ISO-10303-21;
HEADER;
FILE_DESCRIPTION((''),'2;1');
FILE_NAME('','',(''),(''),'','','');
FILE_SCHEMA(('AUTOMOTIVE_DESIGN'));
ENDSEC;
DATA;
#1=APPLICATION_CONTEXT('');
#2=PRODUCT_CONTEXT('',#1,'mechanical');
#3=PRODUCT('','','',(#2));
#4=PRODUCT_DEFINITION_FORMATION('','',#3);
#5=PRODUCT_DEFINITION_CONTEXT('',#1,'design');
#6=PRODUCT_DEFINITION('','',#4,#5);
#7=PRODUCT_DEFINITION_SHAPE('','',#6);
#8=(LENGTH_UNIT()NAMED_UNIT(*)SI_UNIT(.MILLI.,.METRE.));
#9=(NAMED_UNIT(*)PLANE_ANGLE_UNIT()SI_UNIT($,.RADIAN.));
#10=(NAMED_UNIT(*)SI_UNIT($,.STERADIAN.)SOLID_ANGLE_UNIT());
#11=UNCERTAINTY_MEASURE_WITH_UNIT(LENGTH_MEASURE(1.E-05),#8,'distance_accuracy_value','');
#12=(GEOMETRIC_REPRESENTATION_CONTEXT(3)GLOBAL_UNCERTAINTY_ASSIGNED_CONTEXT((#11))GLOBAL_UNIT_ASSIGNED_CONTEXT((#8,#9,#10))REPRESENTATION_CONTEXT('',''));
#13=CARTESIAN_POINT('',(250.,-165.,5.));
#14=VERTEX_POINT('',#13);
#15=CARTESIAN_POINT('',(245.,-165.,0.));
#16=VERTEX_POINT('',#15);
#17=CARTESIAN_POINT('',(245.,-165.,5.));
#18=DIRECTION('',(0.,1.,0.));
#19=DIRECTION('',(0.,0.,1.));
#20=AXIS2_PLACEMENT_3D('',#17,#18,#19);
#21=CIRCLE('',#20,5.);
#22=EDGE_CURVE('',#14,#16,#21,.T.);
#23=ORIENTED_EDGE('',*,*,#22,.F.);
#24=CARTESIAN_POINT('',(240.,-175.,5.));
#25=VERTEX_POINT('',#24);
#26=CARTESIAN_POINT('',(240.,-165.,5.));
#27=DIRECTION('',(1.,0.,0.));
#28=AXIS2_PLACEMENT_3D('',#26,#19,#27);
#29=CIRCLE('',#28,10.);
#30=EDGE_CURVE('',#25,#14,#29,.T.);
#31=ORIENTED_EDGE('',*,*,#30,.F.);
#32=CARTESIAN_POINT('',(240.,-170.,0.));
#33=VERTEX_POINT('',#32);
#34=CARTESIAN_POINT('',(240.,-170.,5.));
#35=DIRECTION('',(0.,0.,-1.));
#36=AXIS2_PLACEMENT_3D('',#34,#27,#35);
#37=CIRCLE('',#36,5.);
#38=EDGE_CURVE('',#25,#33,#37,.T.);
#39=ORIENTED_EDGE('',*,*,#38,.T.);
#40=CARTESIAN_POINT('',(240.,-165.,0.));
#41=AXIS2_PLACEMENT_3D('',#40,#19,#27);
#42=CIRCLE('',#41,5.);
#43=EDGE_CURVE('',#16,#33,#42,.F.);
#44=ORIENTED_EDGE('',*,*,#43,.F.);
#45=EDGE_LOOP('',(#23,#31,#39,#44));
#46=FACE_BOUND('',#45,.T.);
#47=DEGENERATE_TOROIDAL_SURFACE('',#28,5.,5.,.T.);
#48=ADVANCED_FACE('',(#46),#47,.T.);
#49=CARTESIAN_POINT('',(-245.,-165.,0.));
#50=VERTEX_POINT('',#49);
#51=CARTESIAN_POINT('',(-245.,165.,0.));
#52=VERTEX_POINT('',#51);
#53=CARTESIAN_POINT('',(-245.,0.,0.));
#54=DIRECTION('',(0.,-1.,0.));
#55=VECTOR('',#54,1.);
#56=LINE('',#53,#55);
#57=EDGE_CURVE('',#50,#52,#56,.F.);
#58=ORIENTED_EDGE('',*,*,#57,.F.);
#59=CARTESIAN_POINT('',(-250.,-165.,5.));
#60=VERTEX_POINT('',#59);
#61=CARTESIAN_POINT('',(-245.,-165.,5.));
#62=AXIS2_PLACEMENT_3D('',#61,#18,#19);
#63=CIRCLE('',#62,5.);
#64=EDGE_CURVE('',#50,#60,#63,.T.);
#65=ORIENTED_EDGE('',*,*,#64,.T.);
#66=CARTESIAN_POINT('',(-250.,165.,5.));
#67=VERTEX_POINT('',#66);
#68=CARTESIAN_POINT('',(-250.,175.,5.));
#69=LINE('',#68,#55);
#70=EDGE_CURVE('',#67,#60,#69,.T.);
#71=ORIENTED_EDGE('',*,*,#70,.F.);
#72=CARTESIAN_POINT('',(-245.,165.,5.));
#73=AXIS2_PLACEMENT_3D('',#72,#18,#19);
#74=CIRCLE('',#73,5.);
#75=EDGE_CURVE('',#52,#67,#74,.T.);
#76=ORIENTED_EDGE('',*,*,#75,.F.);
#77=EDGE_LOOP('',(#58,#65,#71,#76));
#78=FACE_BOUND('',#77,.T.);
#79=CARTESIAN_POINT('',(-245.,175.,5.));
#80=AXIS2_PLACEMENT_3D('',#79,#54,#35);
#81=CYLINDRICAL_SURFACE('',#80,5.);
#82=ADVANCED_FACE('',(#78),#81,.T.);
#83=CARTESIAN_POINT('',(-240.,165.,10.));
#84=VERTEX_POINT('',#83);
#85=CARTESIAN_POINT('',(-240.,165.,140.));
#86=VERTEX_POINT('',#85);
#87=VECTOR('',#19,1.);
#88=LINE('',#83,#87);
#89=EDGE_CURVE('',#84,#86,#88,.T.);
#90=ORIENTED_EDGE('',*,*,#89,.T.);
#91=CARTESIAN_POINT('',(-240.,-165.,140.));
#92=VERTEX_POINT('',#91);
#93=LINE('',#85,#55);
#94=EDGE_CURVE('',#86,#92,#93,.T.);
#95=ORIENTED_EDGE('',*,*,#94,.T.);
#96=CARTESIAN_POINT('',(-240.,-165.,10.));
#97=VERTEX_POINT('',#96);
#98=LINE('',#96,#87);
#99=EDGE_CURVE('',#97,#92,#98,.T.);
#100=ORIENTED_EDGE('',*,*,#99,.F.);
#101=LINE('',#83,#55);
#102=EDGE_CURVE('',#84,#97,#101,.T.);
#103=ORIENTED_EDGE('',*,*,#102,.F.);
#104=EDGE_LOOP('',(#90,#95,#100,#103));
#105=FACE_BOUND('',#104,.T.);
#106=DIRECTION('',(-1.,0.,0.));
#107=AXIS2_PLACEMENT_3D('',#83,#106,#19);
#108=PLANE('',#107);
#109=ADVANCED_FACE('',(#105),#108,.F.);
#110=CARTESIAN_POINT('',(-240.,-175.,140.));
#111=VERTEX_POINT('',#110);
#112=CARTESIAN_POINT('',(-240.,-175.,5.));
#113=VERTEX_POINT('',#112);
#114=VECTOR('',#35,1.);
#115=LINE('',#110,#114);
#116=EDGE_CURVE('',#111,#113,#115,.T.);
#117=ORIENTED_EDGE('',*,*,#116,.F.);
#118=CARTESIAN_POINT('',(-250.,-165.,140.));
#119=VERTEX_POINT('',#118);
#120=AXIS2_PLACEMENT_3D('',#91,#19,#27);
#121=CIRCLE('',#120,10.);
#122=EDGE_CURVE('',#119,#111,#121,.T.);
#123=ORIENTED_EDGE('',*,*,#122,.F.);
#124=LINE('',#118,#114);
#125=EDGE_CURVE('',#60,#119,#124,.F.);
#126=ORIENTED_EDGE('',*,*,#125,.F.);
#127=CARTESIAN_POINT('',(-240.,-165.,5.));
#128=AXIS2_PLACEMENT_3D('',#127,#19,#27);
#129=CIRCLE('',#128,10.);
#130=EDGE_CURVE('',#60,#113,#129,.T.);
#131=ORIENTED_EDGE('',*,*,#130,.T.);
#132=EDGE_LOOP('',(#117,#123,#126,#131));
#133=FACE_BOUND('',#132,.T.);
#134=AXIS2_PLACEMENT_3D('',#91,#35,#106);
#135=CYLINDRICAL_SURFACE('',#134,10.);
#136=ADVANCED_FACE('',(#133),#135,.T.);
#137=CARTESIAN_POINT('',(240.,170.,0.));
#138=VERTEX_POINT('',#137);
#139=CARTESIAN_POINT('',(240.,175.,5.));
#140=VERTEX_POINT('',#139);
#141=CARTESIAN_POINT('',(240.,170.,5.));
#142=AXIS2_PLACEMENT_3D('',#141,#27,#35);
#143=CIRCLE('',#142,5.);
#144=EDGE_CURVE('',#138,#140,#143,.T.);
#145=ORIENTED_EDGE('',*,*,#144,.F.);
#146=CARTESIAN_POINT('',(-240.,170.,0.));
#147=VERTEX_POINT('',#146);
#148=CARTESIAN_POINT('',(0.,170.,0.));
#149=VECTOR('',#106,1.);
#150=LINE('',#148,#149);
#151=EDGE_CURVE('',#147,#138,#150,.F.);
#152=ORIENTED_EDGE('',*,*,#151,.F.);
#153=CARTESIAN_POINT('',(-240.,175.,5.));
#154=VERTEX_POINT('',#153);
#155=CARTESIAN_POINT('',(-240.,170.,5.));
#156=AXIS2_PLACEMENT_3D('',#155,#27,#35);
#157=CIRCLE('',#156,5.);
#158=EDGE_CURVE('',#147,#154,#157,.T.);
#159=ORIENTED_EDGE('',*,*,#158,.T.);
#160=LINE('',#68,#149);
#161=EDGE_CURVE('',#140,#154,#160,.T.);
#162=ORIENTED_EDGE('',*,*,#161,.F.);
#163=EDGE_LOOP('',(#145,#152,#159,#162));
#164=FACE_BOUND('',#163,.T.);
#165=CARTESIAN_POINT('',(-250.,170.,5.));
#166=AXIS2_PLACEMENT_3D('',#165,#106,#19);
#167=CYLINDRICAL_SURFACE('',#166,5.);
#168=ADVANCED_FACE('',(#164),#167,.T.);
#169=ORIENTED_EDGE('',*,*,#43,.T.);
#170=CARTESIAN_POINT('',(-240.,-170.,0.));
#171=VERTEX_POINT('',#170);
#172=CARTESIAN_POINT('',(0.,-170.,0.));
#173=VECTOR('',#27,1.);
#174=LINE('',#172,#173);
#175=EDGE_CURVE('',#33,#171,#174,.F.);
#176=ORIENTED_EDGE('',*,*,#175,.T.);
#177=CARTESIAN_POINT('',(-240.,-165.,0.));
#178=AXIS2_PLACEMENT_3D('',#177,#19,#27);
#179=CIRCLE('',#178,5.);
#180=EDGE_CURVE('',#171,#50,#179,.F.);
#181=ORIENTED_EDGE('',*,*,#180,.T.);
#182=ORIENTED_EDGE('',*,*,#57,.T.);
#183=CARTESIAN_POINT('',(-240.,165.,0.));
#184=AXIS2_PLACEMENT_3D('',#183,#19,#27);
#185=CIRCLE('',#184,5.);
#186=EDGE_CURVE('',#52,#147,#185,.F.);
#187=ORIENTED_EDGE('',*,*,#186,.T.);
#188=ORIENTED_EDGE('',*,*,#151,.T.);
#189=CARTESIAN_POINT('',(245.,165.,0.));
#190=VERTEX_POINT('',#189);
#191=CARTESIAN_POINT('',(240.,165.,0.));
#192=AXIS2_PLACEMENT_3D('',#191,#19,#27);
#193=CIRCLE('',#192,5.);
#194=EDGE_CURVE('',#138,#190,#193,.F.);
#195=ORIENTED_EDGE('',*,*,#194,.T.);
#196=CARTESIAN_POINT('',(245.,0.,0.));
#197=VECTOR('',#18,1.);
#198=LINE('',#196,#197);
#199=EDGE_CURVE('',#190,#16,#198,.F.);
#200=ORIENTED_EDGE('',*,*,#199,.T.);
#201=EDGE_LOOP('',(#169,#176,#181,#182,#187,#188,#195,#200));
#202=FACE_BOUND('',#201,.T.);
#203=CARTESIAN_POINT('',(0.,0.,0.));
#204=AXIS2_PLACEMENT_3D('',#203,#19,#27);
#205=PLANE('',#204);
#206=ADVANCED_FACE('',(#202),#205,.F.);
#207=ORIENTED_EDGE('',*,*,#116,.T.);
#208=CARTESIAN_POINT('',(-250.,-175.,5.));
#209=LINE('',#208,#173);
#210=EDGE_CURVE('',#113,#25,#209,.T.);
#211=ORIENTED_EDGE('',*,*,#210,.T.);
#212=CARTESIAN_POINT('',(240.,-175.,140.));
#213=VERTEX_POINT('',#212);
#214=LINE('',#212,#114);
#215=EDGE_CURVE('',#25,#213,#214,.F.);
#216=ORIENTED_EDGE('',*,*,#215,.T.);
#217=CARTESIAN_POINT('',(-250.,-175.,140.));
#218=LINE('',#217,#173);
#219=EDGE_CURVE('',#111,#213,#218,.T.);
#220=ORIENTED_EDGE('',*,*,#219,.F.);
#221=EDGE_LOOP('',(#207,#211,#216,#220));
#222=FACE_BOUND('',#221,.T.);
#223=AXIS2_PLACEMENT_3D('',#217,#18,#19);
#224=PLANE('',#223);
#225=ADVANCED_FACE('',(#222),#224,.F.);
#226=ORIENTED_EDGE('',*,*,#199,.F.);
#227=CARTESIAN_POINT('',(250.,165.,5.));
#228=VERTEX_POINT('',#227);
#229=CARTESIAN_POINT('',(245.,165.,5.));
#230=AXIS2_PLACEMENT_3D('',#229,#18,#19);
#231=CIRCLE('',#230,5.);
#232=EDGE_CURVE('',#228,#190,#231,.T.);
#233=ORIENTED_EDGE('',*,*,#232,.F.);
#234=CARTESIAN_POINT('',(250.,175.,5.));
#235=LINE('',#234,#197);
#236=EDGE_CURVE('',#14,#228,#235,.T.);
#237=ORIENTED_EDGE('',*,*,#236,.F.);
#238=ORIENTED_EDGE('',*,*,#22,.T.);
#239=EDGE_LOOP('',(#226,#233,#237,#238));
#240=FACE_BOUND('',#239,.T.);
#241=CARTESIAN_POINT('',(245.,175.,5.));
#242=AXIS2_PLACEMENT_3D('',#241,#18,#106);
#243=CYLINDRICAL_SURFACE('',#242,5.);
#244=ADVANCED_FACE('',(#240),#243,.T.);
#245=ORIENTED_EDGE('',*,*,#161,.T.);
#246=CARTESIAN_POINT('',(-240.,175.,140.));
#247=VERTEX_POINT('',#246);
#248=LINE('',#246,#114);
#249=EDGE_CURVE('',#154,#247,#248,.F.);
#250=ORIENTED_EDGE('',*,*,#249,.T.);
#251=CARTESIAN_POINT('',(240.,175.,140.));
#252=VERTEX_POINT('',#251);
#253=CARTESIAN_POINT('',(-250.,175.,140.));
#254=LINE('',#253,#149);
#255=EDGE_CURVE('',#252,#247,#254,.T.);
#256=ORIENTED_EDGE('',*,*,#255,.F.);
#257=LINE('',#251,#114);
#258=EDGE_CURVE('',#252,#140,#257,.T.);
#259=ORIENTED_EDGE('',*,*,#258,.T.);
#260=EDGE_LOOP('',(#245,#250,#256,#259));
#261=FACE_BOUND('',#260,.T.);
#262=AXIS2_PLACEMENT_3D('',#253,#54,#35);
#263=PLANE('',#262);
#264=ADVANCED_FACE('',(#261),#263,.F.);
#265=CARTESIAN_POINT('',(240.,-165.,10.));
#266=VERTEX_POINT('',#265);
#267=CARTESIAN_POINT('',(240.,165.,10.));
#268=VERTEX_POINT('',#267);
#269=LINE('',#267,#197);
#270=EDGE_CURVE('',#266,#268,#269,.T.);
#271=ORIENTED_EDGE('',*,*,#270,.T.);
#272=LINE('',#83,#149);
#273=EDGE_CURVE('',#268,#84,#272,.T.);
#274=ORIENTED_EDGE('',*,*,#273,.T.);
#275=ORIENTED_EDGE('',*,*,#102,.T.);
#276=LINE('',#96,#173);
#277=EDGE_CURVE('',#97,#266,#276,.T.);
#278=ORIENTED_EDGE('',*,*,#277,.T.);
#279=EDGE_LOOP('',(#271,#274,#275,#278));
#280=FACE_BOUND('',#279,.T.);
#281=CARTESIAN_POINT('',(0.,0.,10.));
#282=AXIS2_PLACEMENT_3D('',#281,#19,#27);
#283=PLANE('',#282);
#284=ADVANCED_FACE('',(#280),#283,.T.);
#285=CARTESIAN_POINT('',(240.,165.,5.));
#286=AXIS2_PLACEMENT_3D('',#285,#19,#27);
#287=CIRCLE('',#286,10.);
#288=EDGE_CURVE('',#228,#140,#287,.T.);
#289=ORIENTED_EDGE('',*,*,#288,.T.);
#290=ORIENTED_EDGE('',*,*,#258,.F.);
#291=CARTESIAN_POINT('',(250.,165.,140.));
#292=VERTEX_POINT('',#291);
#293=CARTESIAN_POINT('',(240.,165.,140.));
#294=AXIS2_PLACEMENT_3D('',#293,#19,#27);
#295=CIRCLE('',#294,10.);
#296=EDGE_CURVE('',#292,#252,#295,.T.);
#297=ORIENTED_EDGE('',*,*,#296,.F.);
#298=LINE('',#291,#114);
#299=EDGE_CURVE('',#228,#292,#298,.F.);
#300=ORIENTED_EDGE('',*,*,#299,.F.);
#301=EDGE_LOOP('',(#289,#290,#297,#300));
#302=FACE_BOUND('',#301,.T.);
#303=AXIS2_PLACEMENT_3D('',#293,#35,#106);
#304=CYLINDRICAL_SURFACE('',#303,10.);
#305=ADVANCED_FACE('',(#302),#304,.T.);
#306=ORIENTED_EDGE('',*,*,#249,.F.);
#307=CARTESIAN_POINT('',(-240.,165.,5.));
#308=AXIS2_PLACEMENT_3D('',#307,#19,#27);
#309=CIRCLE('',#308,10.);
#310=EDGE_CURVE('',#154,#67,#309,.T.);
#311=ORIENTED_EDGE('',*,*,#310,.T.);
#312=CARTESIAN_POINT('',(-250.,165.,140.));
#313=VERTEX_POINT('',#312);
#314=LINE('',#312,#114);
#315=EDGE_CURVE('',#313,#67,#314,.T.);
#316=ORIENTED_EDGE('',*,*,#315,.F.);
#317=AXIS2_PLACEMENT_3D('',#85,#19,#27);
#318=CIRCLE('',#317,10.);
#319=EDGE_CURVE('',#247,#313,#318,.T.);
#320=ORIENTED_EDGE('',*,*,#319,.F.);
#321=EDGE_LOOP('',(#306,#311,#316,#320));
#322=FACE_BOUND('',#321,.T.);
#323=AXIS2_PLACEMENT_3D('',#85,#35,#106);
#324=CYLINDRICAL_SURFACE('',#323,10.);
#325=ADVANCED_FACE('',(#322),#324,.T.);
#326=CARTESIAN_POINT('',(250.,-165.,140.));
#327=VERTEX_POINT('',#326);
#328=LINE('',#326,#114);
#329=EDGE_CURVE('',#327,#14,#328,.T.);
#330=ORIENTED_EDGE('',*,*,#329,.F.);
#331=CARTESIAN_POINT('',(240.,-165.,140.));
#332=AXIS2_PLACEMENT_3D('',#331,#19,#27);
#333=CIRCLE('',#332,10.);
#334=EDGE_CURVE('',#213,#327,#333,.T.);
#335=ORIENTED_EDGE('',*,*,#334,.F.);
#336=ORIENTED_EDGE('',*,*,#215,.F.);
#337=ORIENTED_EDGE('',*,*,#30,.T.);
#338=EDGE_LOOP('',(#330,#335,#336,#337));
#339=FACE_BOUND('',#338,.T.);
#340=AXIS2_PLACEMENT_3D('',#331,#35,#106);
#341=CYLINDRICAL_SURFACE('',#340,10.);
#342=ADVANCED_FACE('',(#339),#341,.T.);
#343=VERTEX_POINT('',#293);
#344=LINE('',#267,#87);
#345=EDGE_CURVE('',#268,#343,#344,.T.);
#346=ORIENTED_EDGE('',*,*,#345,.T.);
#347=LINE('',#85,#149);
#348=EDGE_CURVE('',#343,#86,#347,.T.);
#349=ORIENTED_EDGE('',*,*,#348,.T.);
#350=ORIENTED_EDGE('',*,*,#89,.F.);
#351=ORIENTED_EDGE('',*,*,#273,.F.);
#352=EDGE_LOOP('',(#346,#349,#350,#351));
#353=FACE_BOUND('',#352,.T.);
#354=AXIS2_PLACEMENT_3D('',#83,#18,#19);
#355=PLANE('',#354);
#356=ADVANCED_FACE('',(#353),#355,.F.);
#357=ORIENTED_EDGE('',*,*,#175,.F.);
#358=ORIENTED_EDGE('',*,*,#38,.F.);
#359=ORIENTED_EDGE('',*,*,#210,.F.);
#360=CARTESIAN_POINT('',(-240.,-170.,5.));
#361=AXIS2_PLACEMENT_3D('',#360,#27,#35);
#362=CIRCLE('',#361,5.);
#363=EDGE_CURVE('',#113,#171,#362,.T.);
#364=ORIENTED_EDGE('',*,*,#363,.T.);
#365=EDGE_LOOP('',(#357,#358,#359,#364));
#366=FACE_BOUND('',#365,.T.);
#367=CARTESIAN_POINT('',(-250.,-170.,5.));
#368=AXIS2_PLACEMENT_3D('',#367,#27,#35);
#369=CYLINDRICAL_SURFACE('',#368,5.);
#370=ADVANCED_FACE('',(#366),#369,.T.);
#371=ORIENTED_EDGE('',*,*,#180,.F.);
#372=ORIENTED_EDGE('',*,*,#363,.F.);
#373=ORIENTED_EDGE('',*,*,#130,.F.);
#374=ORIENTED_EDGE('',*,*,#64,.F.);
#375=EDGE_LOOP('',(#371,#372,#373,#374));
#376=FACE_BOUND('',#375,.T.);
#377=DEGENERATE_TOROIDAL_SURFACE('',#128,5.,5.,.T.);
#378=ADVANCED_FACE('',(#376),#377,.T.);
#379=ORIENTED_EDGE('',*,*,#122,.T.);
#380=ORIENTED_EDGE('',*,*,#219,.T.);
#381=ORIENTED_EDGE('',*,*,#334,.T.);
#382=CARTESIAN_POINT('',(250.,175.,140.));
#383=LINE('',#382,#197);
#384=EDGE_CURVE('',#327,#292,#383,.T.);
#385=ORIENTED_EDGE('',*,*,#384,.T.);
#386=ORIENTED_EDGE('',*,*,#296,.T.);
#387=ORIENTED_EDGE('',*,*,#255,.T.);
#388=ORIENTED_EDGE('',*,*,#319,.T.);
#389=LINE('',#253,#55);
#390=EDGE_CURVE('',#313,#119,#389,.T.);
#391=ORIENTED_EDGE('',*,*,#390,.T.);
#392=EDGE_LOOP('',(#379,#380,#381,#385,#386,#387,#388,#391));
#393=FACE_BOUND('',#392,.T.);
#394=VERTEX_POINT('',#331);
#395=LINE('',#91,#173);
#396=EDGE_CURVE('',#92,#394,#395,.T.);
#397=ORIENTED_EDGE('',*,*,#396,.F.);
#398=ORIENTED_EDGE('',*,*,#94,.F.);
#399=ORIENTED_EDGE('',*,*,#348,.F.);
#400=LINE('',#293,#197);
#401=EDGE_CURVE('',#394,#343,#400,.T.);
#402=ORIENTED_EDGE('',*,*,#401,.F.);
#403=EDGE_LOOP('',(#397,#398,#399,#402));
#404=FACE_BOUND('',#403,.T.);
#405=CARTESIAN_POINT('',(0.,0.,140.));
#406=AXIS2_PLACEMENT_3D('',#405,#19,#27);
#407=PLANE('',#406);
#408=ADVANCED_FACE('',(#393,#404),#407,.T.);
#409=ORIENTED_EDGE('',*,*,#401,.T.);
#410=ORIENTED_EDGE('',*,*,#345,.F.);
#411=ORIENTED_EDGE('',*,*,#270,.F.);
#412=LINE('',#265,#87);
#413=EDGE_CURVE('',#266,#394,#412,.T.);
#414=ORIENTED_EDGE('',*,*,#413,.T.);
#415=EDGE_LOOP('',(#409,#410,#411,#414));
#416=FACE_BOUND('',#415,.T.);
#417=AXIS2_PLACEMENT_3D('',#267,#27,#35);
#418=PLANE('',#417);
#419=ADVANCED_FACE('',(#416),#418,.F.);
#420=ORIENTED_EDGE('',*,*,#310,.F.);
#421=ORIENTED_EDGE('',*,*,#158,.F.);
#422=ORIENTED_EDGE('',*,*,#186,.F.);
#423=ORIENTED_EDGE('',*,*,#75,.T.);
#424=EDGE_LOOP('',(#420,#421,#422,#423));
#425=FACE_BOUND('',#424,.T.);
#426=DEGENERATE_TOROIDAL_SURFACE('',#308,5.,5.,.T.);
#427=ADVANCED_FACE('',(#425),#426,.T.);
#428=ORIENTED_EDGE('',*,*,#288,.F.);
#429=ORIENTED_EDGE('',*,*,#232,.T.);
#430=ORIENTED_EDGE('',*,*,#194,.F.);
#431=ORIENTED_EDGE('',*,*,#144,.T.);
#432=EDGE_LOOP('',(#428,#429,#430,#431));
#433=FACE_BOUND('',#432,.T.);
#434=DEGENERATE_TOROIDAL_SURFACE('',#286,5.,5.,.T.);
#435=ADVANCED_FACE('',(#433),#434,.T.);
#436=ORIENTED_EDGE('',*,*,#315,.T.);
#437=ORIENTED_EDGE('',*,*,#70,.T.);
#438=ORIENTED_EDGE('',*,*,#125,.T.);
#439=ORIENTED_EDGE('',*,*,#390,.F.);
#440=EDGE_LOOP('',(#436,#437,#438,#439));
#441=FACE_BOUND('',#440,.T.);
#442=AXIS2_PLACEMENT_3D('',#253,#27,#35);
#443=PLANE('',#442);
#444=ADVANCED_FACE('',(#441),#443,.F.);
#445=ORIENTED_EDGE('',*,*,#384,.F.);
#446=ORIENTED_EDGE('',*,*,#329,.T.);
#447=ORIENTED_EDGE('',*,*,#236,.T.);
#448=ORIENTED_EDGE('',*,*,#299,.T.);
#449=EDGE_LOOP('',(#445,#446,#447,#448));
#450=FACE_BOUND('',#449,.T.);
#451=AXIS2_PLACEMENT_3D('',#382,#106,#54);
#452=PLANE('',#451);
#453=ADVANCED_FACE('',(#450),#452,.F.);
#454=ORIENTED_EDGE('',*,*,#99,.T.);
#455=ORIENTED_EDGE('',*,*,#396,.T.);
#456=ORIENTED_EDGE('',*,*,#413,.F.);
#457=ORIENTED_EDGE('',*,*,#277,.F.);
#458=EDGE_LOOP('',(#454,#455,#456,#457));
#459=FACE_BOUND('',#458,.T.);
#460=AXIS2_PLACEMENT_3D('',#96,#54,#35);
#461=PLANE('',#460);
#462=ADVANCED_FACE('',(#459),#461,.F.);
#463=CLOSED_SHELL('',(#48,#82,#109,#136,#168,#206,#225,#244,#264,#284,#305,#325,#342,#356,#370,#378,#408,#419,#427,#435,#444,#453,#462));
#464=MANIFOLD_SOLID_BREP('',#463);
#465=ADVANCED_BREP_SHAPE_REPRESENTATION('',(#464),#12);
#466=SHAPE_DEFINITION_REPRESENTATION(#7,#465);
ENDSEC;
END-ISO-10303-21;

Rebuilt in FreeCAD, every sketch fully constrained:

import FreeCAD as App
import Part
import Sketcher

V = App.Vector


def edges_at(feature, points):
    """Names of the edges that pass closest to the given points."""
    edges = feature.Shape.Edges
    near = lambda p: min(range(len(edges)), key=lambda i: edges[i].distToShape(Part.Vertex(*p))[0])
    return sorted({f"Edge{near(p) + 1}" for p in points})

doc = App.newDocument("Part")
body = doc.addObject("PartDesign::Body", "Body")

# Sketch on XY plane
sketch1 = body.newObject("Sketcher::SketchObject", "Sketch")
sketch1.AttachmentSupport = (doc.getObject("XY_Plane"), [""])
sketch1.MapMode = "FlatFace"
sketch1.addGeometry([
    Part.LineSegment(V(-250, 175, 0), V(-250, -175, 0)),
    Part.LineSegment(V(-250, -175, 0), V(250, -175, 0)),
    Part.LineSegment(V(250, -175, 0), V(250, 175, 0)),
    Part.LineSegment(V(250, 175, 0), V(-250, 175, 0)),
], False)
sketch1.addConstraint([
    Sketcher.Constraint("Coincident", 0, 2, 1, 1),
    Sketcher.Constraint("Coincident", 1, 2, 2, 1),
    Sketcher.Constraint("Coincident", 2, 2, 3, 1),
    Sketcher.Constraint("Coincident", 3, 2, 0, 1),
    Sketcher.Constraint("Vertical", 0),
    Sketcher.Constraint("Horizontal", 1),
    Sketcher.Constraint("Vertical", 2),
    Sketcher.Constraint("Horizontal", 3),
    Sketcher.Constraint("Symmetric", 0, 2, 2, 2, -1, 1),
    Sketcher.Constraint("DistanceX", 1, 1, 1, 2, 500.0),
    Sketcher.Constraint("DistanceY", 0, 2, 0, 1, 350.0),
])
pad1 = body.newObject("PartDesign::Pad", "Pad")
pad1.Profile = sketch1
pad1.Length = 140

# Sketch on XY plane
sketch2 = body.newObject("Sketcher::SketchObject", "Sketch001")
sketch2.AttachmentSupport = (doc.getObject("XY_Plane"), [""])
sketch2.MapMode = "FlatFace"
sketch2.AttachmentOffset = App.Placement(V(0, 0, 140), App.Rotation())
sketch2.addGeometry([
    Part.LineSegment(V(-240, 165, 0), V(-240, -165, 0)),
    Part.LineSegment(V(-240, -165, 0), V(240, -165, 0)),
    Part.LineSegment(V(240, -165, 0), V(240, 165, 0)),
    Part.LineSegment(V(240, 165, 0), V(-240, 165, 0)),
], False)
sketch2.addConstraint([
    Sketcher.Constraint("Coincident", 0, 2, 1, 1),
    Sketcher.Constraint("Coincident", 1, 2, 2, 1),
    Sketcher.Constraint("Coincident", 2, 2, 3, 1),
    Sketcher.Constraint("Coincident", 3, 2, 0, 1),
    Sketcher.Constraint("Vertical", 0),
    Sketcher.Constraint("Horizontal", 1),
    Sketcher.Constraint("Vertical", 2),
    Sketcher.Constraint("Horizontal", 3),
    Sketcher.Constraint("Symmetric", 0, 2, 2, 2, -1, 1),
    Sketcher.Constraint("DistanceX", 1, 1, 1, 2, 480.0),
    Sketcher.Constraint("DistanceY", 0, 2, 0, 1, 330.0),
])
pocket1 = body.newObject("PartDesign::Pocket", "Pocket")
pocket1.Profile = sketch2
pocket1.Length = 130
doc.recompute()

fillet = body.newObject("PartDesign::Fillet", "Fillet")
fillet.Base = (pocket1, edges_at(pocket1, [
    (250, -175, 70),
    (-250, -175, 70),
    (-250, 175, 70),
    (250, 175, 70),
]))
fillet.Radius = 10
doc.recompute()

fillet2 = body.newObject("PartDesign::Fillet", "Fillet001")
fillet2.Base = (fillet, edges_at(fillet, [
    (0, 175, 0),
    (250, 0, 0),
    (0, -175, 0),
    (-250, 0, 0),
    (-247.071, -172.071, 0),
    (-247.071, 172.071, 0),
    (247.071, -172.071, 0),
    (247.071, 172.071, 0),
]))
fillet2.Radius = 5

doc.recompute()
